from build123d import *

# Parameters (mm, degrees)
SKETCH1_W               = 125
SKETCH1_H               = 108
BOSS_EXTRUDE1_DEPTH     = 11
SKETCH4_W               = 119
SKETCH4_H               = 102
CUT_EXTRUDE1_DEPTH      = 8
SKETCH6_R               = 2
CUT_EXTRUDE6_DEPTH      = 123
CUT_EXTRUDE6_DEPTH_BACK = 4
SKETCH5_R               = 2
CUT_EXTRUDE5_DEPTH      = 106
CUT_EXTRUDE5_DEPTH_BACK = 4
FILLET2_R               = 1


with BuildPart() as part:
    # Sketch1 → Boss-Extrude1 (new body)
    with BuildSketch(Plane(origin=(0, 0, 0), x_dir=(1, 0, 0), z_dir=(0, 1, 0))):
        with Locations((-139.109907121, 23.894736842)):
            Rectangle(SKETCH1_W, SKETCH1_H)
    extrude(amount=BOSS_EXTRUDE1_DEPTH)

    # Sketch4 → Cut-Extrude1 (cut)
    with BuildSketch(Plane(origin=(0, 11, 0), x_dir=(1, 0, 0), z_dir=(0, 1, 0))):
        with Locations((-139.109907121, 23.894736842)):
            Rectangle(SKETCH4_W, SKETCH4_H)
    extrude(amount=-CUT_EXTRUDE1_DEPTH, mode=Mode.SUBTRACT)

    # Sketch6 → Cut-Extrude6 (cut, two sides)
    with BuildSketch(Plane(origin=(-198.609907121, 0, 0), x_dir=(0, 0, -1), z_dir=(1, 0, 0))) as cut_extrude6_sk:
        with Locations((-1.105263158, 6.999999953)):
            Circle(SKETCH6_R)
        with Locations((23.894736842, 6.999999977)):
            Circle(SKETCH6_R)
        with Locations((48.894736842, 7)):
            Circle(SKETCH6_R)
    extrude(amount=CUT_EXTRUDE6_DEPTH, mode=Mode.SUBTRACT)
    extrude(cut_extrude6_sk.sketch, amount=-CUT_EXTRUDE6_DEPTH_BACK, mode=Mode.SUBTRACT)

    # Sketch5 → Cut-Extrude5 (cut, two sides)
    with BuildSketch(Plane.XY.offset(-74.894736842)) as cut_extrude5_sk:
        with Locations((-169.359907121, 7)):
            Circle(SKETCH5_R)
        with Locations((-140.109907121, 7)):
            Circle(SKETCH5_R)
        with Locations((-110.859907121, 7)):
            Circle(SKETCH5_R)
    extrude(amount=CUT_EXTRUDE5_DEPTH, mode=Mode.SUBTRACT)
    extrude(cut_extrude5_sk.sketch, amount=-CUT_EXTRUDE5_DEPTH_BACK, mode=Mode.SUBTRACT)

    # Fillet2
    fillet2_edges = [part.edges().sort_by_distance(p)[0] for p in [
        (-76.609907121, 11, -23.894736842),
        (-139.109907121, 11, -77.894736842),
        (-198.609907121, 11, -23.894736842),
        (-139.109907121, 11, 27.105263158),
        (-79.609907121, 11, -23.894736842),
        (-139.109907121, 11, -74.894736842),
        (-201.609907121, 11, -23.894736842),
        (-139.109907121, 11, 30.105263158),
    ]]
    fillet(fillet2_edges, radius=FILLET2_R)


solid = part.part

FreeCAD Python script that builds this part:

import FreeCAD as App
import Part
import Sketcher


def edges_at(feature, points):
    """Names of the edges that pass closest to the given points."""
    edges = feature.Shape.Edges
    near = lambda p: min(range(len(edges)), key=lambda i: edges[i].distToShape(Part.Vertex(*p))[0])
    return sorted({f"Edge{near(p) + 1}" for p in points})

doc = App.newDocument("Part")
body = doc.addObject("PartDesign::Body", "Body")

sketch1 = body.newObject("Sketcher::SketchObject", "Sketch")
sketch1.AttachmentSupport = (doc.getObject("XZ_Plane"), [""])
sketch1.MapMode = "FlatFace"
sketch1.addGeometry(Part.LineSegment(App.Vector(-201.609907, -77.894737, 0), App.Vector(-201.609907, 30.105263, 0)), False)
sketch1.addGeometry(Part.LineSegment(App.Vector(-201.609907, 30.105263, 0), App.Vector(-76.609907, 30.105263, 0)), False)
sketch1.addGeometry(Part.LineSegment(App.Vector(-76.609907, 30.105263, 0), App.Vector(-76.609907, -77.894737, 0)), False)
sketch1.addGeometry(Part.LineSegment(App.Vector(-76.609907, -77.894737, 0), App.Vector(-201.609907, -77.894737, 0)), False)
sketch1.addConstraint(Sketcher.Constraint("Coincident", 0, 2, 1, 1))
sketch1.addConstraint(Sketcher.Constraint("Coincident", 1, 2, 2, 1))
sketch1.addConstraint(Sketcher.Constraint("Coincident", 2, 2, 3, 1))
sketch1.addConstraint(Sketcher.Constraint("Coincident", 3, 2, 0, 1))
sketch1.addConstraint(Sketcher.Constraint("Vertical", 0))
sketch1.addConstraint(Sketcher.Constraint("Horizontal", 1))
sketch1.addConstraint(Sketcher.Constraint("Vertical", 2))
sketch1.addConstraint(Sketcher.Constraint("Horizontal", 3))
sketch1.addConstraint(Sketcher.Constraint("DistanceX", 1, 1, 1, 2, 125.0))
sketch1.addConstraint(Sketcher.Constraint("DistanceY", 0, 1, 0, 2, 108.0))
sketch1.addConstraint(Sketcher.Constraint("DistanceX", 0, 2, -1, 1, 201.609907))
sketch1.addConstraint(Sketcher.Constraint("DistanceY", -1, 1, 0, 2, 30.105263))
pad1 = body.newObject("PartDesign::Pad", "Pad")
pad1.Profile = sketch1
pad1.Length = 11
pad1.Reversed = True

sketch2 = body.newObject("Sketcher::SketchObject", "Sketch001")
sketch2.AttachmentSupport = (doc.getObject("XZ_Plane"), [""])
sketch2.MapMode = "FlatFace"
sketch2.AttachmentOffset = App.Placement(App.Vector(0, 0, -11), App.Rotation())
sketch2.addGeometry(Part.LineSegment(App.Vector(-198.609907, -74.894737, 0), App.Vector(-198.609907, 27.105263, 0)), False)
sketch2.addGeometry(Part.LineSegment(App.Vector(-198.609907, 27.105263, 0), App.Vector(-79.609907, 27.105263, 0)), False)
sketch2.addGeometry(Part.LineSegment(App.Vector(-79.609907, 27.105263, 0), App.Vector(-79.609907, -74.894737, 0)), False)
sketch2.addGeometry(Part.LineSegment(App.Vector(-79.609907, -74.894737, 0), App.Vector(-198.609907, -74.894737, 0)), False)
sketch2.addConstraint(Sketcher.Constraint("Coincident", 0, 2, 1, 1))
sketch2.addConstraint(Sketcher.Constraint("Coincident", 1, 2, 2, 1))
sketch2.addConstraint(Sketcher.Constraint("Coincident", 2, 2, 3, 1))
sketch2.addConstraint(Sketcher.Constraint("Coincident", 3, 2, 0, 1))
sketch2.addConstraint(Sketcher.Constraint("Vertical", 0))
sketch2.addConstraint(Sketcher.Constraint("Horizontal", 1))
sketch2.addConstraint(Sketcher.Constraint("Vertical", 2))
sketch2.addConstraint(Sketcher.Constraint("Horizontal", 3))
sketch2.addConstraint(Sketcher.Constraint("DistanceX", 1, 1, 1, 2, 119.0))
sketch2.addConstraint(Sketcher.Constraint("DistanceY", 0, 1, 0, 2, 102.0))
sketch2.addConstraint(Sketcher.Constraint("DistanceX", 0, 2, -1, 1, 198.609907))
sketch2.addConstraint(Sketcher.Constraint("DistanceY", -1, 1, 0, 2, 27.105263))
pocket1 = body.newObject("PartDesign::Pocket", "Pocket")
pocket1.Profile = sketch2
pocket1.Length = 8
pocket1.Reversed = True

sketch3 = body.newObject("Sketcher::SketchObject", "Sketch002")
sketch3.AttachmentSupport = (doc.getObject("YZ_Plane"), [""])
sketch3.MapMode = "FlatFace"
sketch3.AttachmentOffset = App.Placement(App.Vector(0, 0, -198.609907), App.Rotation())
sketch3.addGeometry(Part.Circle(App.Vector(7, 1.105263, 0), App.Vector(0, 0, 1), 2), False)
sketch3.addGeometry(Part.Circle(App.Vector(7, -23.894737, 0), App.Vector(0, 0, 1), 2), False)
sketch3.addGeometry(Part.Circle(App.Vector(7, -48.894737, 0), App.Vector(0, 0, 1), 2), False)
sketch3.addConstraint(Sketcher.Constraint("Equal", 0, 1))
sketch3.addConstraint(Sketcher.Constraint("Equal", 1, 2))
sketch3.addConstraint(Sketcher.Constraint("Vertical", 0, 3, 1, 3))
sketch3.addConstraint(Sketcher.Constraint("Vertical", 1, 3, 2, 3))
sketch3.addConstraint(Sketcher.Constraint("Diameter", 0, 4.0))
sketch3.addConstraint(Sketcher.Constraint("DistanceX", -1, 1, 0, 3, 7.0))
sketch3.addConstraint(Sketcher.Constraint("DistanceY", 1, 3, 0, 3, 25.0))
sketch3.addConstraint(Sketcher.Constraint("DistanceY", 2, 3, 1, 3, 25.0))
sketch3.addConstraint(Sketcher.Constraint("DistanceY", -1, 1, 0, 3, 1.105263))
pocket2 = body.newObject("PartDesign::Pocket", "Pocket001")
pocket2.Profile = sketch3
pocket2.Type = "ThroughAll"
pocket2.Midplane = True

sketch4 = body.newObject("Sketcher::SketchObject", "Sketch003")
sketch4.AttachmentSupport = (doc.getObject("XY_Plane"), [""])
sketch4.MapMode = "FlatFace"
sketch4.AttachmentOffset = App.Placement(App.Vector(0, 0, -74.894737), App.Rotation())
sketch4.addGeometry(Part.Circle(App.Vector(-169.359907, 7, 0), App.Vector(0, 0, 1), 2), False)
sketch4.addGeometry(Part.Circle(App.Vector(-140.109907, 7, 0), App.Vector(0, 0, 1), 2), False)
sketch4.addGeometry(Part.Circle(App.Vector(-110.859907, 7, 0), App.Vector(0, 0, 1), 2), False)
sketch4.addConstraint(Sketcher.Constraint("Equal", 0, 1))
sketch4.addConstraint(Sketcher.Constraint("Equal", 1, 2))
sketch4.addConstraint(Sketcher.Constraint("Horizontal", 0, 3, 1, 3))
sketch4.addConstraint(Sketcher.Constraint("Horizontal", 1, 3, 2, 3))
sketch4.addConstraint(Sketcher.Constraint("Diameter", 0, 4.0))
sketch4.addConstraint(Sketcher.Constraint("DistanceY", -1, 1, 0, 3, 7.0))
sketch4.addConstraint(Sketcher.Constraint("DistanceX", 0, 3, 2, 3, 58.5))
sketch4.addConstraint(Sketcher.Constraint("DistanceX", 0, 3, 1, 3, 29.25))
sketch4.addConstraint(Sketcher.Constraint("DistanceX", 0, 3, -1, 1, 169.359907))
pocket3 = body.newObject("PartDesign::Pocket", "Pocket002")
pocket3.Profile = sketch4
pocket3.Type = "ThroughAll"
pocket3.Midplane = True
doc.recompute()

fillet = body.newObject("PartDesign::Fillet", "Fillet")
fillet.Base = (pocket3, edges_at(pocket3, [
    (-76.61, 11, -23.895),
    (-139.11, 11, -77.895),
    (-198.61, 11, -23.895),
    (-139.11, 11, 27.105),
    (-79.61, 11, -23.895),
    (-139.11, 11, -74.895),
    (-201.61, 11, -23.895),
    (-139.11, 11, 30.105),
]))
fillet.Radius = 1

doc.recompute()
